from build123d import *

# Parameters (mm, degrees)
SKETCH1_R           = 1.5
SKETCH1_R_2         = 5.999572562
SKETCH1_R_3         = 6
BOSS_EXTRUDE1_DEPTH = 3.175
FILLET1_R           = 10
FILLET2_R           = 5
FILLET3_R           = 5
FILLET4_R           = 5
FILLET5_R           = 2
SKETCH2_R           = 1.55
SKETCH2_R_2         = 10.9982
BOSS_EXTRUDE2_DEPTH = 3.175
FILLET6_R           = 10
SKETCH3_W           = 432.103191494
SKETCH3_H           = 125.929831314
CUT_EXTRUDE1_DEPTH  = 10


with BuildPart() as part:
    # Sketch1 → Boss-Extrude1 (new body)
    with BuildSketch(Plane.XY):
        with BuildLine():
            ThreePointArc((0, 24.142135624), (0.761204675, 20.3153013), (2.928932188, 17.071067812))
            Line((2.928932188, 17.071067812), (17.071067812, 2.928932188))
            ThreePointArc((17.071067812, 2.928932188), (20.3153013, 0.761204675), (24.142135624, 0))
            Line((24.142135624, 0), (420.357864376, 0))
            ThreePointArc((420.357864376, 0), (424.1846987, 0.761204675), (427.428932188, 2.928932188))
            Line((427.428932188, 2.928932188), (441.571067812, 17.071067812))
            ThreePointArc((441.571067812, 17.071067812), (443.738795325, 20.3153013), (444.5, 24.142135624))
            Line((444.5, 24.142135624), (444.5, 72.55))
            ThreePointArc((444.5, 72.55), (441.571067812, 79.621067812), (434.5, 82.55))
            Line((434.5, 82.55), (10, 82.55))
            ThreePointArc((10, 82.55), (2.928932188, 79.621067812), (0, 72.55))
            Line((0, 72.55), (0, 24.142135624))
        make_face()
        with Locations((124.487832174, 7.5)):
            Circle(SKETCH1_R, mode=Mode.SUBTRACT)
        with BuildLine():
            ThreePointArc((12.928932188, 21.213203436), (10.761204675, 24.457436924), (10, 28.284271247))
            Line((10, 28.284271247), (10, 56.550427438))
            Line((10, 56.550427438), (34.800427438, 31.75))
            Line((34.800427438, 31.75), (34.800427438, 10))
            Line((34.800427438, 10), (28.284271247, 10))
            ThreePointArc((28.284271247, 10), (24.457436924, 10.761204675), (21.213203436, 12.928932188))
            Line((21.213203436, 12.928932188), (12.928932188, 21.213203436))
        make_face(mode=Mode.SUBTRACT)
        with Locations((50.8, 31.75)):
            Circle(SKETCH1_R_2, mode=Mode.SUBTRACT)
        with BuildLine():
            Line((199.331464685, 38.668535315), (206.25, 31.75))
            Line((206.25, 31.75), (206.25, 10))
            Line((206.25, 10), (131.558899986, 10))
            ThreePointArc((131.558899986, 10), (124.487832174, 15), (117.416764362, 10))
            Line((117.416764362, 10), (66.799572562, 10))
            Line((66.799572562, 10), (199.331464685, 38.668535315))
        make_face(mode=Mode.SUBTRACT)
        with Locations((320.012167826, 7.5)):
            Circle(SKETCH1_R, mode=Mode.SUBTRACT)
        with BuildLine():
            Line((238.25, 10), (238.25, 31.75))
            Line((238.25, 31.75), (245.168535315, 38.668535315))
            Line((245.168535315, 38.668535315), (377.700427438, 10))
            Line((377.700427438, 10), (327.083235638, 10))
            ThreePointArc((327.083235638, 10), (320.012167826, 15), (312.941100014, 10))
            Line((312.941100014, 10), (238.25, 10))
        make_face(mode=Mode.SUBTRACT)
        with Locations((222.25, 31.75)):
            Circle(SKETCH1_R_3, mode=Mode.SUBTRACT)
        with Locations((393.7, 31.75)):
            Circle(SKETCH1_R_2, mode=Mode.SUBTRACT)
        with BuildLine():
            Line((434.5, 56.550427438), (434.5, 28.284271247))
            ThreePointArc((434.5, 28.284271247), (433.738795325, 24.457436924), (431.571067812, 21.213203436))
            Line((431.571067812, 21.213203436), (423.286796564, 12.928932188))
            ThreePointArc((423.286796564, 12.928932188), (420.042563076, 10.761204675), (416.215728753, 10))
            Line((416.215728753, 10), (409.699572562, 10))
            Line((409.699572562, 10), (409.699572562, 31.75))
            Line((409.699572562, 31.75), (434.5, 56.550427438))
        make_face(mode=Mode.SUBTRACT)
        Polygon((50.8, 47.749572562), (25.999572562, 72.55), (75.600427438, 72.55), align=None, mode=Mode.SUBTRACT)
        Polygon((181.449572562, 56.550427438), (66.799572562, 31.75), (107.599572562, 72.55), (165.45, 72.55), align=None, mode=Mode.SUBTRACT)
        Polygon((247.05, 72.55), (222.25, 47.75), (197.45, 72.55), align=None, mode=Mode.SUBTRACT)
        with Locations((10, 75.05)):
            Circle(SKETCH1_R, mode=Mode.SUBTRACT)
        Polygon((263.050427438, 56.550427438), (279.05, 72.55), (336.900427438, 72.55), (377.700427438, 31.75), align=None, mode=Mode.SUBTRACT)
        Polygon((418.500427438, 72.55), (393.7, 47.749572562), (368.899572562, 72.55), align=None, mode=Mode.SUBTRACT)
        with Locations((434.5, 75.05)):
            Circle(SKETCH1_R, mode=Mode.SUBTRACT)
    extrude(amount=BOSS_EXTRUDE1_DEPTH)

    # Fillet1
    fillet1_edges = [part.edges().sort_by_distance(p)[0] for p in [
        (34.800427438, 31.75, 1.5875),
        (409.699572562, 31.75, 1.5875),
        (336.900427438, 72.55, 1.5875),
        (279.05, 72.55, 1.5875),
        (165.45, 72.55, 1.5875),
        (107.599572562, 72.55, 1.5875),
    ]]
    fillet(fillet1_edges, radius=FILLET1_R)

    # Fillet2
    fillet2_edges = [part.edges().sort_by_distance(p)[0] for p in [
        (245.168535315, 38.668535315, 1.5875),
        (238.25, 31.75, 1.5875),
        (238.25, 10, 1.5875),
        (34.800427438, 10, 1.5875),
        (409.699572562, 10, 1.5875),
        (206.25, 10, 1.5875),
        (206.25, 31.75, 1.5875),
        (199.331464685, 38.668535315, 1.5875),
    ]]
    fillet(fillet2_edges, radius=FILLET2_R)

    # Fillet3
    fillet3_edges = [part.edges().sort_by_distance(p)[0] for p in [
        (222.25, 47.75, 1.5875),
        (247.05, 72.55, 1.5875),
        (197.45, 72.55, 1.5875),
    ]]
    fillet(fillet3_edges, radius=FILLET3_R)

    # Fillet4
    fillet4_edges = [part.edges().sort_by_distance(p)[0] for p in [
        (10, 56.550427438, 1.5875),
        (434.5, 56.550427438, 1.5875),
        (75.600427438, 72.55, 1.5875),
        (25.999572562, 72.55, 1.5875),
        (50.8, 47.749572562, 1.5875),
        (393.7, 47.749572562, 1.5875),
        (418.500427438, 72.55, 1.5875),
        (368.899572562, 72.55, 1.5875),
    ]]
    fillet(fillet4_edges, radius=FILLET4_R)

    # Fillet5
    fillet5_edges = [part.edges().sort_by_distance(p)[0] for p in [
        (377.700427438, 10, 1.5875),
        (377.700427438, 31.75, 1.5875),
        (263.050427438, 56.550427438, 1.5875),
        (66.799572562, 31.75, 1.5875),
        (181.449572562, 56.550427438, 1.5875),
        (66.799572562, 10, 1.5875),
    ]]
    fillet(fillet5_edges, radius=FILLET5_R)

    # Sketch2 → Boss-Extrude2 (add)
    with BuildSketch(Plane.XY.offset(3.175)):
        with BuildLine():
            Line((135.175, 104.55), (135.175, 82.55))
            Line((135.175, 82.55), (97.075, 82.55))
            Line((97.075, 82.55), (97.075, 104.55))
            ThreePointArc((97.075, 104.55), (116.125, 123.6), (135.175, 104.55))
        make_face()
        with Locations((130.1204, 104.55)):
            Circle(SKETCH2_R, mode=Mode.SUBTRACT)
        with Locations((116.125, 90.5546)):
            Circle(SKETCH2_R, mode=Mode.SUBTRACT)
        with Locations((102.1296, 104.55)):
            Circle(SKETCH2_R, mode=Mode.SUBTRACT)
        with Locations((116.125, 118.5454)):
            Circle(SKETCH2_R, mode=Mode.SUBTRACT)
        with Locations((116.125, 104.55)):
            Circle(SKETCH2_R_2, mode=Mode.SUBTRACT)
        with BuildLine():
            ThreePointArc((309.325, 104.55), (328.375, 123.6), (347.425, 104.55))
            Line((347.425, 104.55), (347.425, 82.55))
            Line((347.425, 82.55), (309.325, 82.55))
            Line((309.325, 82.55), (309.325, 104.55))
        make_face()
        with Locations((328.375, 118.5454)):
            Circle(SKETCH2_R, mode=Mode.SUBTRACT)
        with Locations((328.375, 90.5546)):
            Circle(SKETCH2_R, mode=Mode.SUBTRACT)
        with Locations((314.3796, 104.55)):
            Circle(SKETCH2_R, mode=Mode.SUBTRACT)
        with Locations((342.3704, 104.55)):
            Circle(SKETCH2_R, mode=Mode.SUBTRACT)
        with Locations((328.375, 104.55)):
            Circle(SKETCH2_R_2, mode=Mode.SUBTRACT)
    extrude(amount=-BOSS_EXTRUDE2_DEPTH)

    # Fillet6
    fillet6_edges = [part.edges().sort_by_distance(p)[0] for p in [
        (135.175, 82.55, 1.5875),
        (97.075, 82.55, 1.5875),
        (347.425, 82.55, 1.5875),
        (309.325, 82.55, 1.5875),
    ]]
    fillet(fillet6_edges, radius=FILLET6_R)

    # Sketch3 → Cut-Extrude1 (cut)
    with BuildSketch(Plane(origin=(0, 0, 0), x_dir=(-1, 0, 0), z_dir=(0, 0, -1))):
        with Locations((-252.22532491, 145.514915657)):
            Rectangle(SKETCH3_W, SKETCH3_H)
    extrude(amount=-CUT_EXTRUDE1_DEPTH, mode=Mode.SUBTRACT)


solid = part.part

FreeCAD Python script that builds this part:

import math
import FreeCAD as App
import Part
import Sketcher


def edges_at(feature, points):
    """Names of the edges that pass closest to the given points."""
    edges = feature.Shape.Edges
    near = lambda p: min(range(len(edges)), key=lambda i: edges[i].distToShape(Part.Vertex(*p))[0])
    return sorted({f"Edge{near(p) + 1}" for p in points})


def add_polygon(sketch, points):
    """Adds a closed chain of lines whose ends are joined by coincident constraints."""
    first, n = sketch.GeometryCount, len(points)
    for a, b in zip(points, points[1:] + points[:1]):
        sketch.addGeometry(Part.LineSegment(App.Vector(*a, 0), App.Vector(*b, 0)), False)
    for i in range(n):
        sketch.addConstraint(Sketcher.Constraint("Coincident", first + i, 2, first + (i + 1) % n, 1))

doc = App.newDocument("Part")
body = doc.addObject("PartDesign::Body", "Body")

# Sketch on XY plane
sketch1 = body.newObject("Sketcher::SketchObject", "Sketch")
sketch1.AttachmentSupport = (doc.getObject("XY_Plane"), [""])
sketch1.MapMode = "FlatFace"
sketch1.addGeometry(Part.ArcOfCircle(Part.Circle(App.Vector(10, 24.1, 0), App.Vector(0, 0, 1), 10), math.radians(180), math.radians(225)), False)  # 0
sketch1.addGeometry(Part.LineSegment(App.Vector(2.9, 17.1, 0), App.Vector(17.1, 2.9, 0)), False)  # 1
sketch1.addGeometry(Part.ArcOfCircle(Part.Circle(App.Vector(24.1, 10, 0), App.Vector(0, 0, 1), 10), math.radians(-135), math.radians(-90)), False)  # 2
sketch1.addGeometry(Part.LineSegment(App.Vector(24.1, 0, 0), App.Vector(420.4, 0, 0)), False)  # 3
sketch1.addGeometry(Part.ArcOfCircle(Part.Circle(App.Vector(420.4, 10, 0), App.Vector(0, 0, 1), 10), math.radians(-90), math.radians(-45)), False)  # 4
sketch1.addGeometry(Part.LineSegment(App.Vector(427.4, 2.9, 0), App.Vector(441.6, 17.1, 0)), False)  # 5
sketch1.addGeometry(Part.ArcOfCircle(Part.Circle(App.Vector(434.5, 24.1, 0), App.Vector(0, 0, 1), 10), math.radians(-45), math.radians(0)), False)  # 6
sketch1.addGeometry(Part.LineSegment(App.Vector(444.5, 24.1, 0), App.Vector(444.5, 72.5, 0)), False)  # 7
sketch1.addGeometry(Part.ArcOfCircle(Part.Circle(App.Vector(434.5, 72.5, 0), App.Vector(0, 0, 1), 10), math.radians(0), math.radians(90)), False)  # 8
sketch1.addGeometry(Part.LineSegment(App.Vector(434.5, 82.5, 0), App.Vector(10, 82.5, 0)), False)  # 9
sketch1.addGeometry(Part.ArcOfCircle(Part.Circle(App.Vector(10, 72.5, 0), App.Vector(0, 0, 1), 10), math.radians(90), math.radians(180)), False)  # 10
sketch1.addGeometry(Part.LineSegment(App.Vector(0, 72.5, 0), App.Vector(0, 24.1, 0)), False)  # 11
sketch1.addGeometry(Part.Circle(App.Vector(124.5, 7.5, 0), App.Vector(0, 0, 1), 1.5), False)  # 12
sketch1.addGeometry(Part.Circle(App.Vector(50.8, 31.8, 0), App.Vector(0, 0, 1), 6), False)  # 13
sketch1.addGeometry(Part.LineSegment(App.Vector(21.2, 12.9, 0), App.Vector(12.9, 21.2, 0)), False)  # 14
sketch1.addGeometry(Part.ArcOfCircle(Part.Circle(App.Vector(20, 28.3, 0), App.Vector(0, 0, 1), 10), math.radians(-180), math.radians(-135)), False)  # 15
sketch1.addGeometry(Part.LineSegment(App.Vector(10, 28.3, 0), App.Vector(10, 56.6, 0)), False)  # 16
sketch1.addGeometry(Part.LineSegment(App.Vector(10, 56.6, 0), App.Vector(34.8, 31.8, 0)), False)  # 17
sketch1.addGeometry(Part.LineSegment(App.Vector(34.8, 31.8, 0), App.Vector(34.8, 10, 0)), False)  # 18
sketch1.addGeometry(Part.LineSegment(App.Vector(34.8, 10, 0), App.Vector(28.3, 10, 0)), False)  # 19
sketch1.addGeometry(Part.ArcOfCircle(Part.Circle(App.Vector(28.3, 20, 0), App.Vector(0, 0, 1), 10), math.radians(-135), math.radians(-90)), False)  # 20
sketch1.addGeometry(Part.LineSegment(App.Vector(66.8, 10, 0), App.Vector(199.3, 38.7, 0)), False)  # 21
sketch1.addGeometry(Part.LineSegment(App.Vector(199.3, 38.7, 0), App.Vector(206.2, 31.8, 0)), False)  # 22
sketch1.addGeometry(Part.LineSegment(App.Vector(206.2, 31.8, 0), App.Vector(206.2, 10, 0)), False)  # 23
sketch1.addGeometry(Part.LineSegment(App.Vector(206.2, 10, 0), App.Vector(131.6, 10, 0)), False)  # 24
sketch1.addGeometry(Part.ArcOfCircle(Part.Circle(App.Vector(124.5, 7.5, 0), App.Vector(0, 0, 1), 7.5), math.radians(19), math.radians(161)), False)  # 25
sketch1.addGeometry(Part.LineSegment(App.Vector(117.4, 10, 0), App.Vector(66.8, 10, 0)), False)  # 26
sketch1.addGeometry(Part.Circle(App.Vector(320, 7.5, 0), App.Vector(0, 0, 1), 1.5), False)  # 27
sketch1.addGeometry(Part.Circle(App.Vector(222.2, 31.8, 0), App.Vector(0, 0, 1), 6), False)  # 28
sketch1.addGeometry(Part.LineSegment(App.Vector(312.9, 10, 0), App.Vector(238.2, 10, 0)), False)  # 29
sketch1.addGeometry(Part.LineSegment(App.Vector(238.2, 10, 0), App.Vector(238.2, 31.8, 0)), False)  # 30
sketch1.addGeometry(Part.LineSegment(App.Vector(238.2, 31.8, 0), App.Vector(245.2, 38.7, 0)), False)  # 31
sketch1.addGeometry(Part.LineSegment(App.Vector(245.2, 38.7, 0), App.Vector(377.7, 10, 0)), False)  # 32
sketch1.addGeometry(Part.LineSegment(App.Vector(377.7, 10, 0), App.Vector(327.1, 10, 0)), False)  # 33
sketch1.addGeometry(Part.ArcOfCircle(Part.Circle(App.Vector(320, 7.5, 0), App.Vector(0, 0, 1), 7.5), math.radians(19), math.radians(161)), False)  # 34
sketch1.addGeometry(Part.Circle(App.Vector(393.7, 31.8, 0), App.Vector(0, 0, 1), 6), False)  # 35
sketch1.addGeometry(Part.LineSegment(App.Vector(409.7, 31.8, 0), App.Vector(434.5, 56.6, 0)), False)  # 36
sketch1.addGeometry(Part.LineSegment(App.Vector(434.5, 56.6, 0), App.Vector(434.5, 28.3, 0)), False)  # 37
sketch1.addGeometry(Part.ArcOfCircle(Part.Circle(App.Vector(424.5, 28.3, 0), App.Vector(0, 0, 1), 10), math.radians(-45), math.radians(0)), False)  # 38
sketch1.addGeometry(Part.LineSegment(App.Vector(431.6, 21.2, 0), App.Vector(423.3, 12.9, 0)), False)  # 39
sketch1.addGeometry(Part.ArcOfCircle(Part.Circle(App.Vector(416.2, 20, 0), App.Vector(0, 0, 1), 10), math.radians(-90), math.radians(-45)), False)  # 40
sketch1.addGeometry(Part.LineSegment(App.Vector(416.2, 10, 0), App.Vector(409.7, 10, 0)), False)  # 41
sketch1.addGeometry(Part.LineSegment(App.Vector(409.7, 10, 0), App.Vector(409.7, 31.8, 0)), False)  # 42
add_polygon(sketch1, [(165.4, 72.5), (181.4, 56.6), (66.8, 31.8), (107.6, 72.5)])  # lines 43-46
add_polygon(sketch1, [(75.6, 72.5), (50.8, 47.7), (26, 72.5)])  # lines 47-49
sketch1.addGeometry(Part.Circle(App.Vector(10, 75, 0), App.Vector(0, 0, 1), 1.5), False)  # 50
add_polygon(sketch1, [(377.7, 31.8), (263.1, 56.6), (279.1, 72.5), (336.9, 72.5)])  # lines 51-54
add_polygon(sketch1, [(197.4, 72.5), (247.1, 72.5), (222.2, 47.8)])  # lines 55-57
add_polygon(sketch1, [(368.9, 72.5), (418.5, 72.5), (393.7, 47.7)])  # lines 58-60
sketch1.addGeometry(Part.Circle(App.Vector(434.5, 75, 0), App.Vector(0, 0, 1), 1.5), False)  # 61
sketch1.addConstraint(Sketcher.Constraint("Tangent", 0, 2, 1, 1))
sketch1.addConstraint(Sketcher.Constraint("Tangent", 1, 2, 2, 1))
sketch1.addConstraint(Sketcher.Constraint("Tangent", 2, 2, 3, 1))
sketch1.addConstraint(Sketcher.Constraint("Tangent", 3, 2, 4, 1))
sketch1.addConstraint(Sketcher.Constraint("Tangent", 4, 2, 5, 1))
sketch1.addConstraint(Sketcher.Constraint("Tangent", 5, 2, 6, 1))
sketch1.addConstraint(Sketcher.Constraint("Tangent", 6, 2, 7, 1))
sketch1.addConstraint(Sketcher.Constraint("Tangent", 7, 2, 8, 1))
sketch1.addConstraint(Sketcher.Constraint("Tangent", 8, 2, 9, 1))
sketch1.addConstraint(Sketcher.Constraint("Tangent", 9, 2, 10, 1))
sketch1.addConstraint(Sketcher.Constraint("Tangent", 10, 2, 11, 1))
sketch1.addConstraint(Sketcher.Constraint("Tangent", 11, 2, 0, 1))
sketch1.addConstraint(Sketcher.Constraint("Tangent", 14, 2, 15, 2))
sketch1.addConstraint(Sketcher.Constraint("Tangent", 15, 1, 16, 1))
sketch1.addConstraint(Sketcher.Constraint("Coincident", 16, 2, 17, 1))
sketch1.addConstraint(Sketcher.Constraint("Coincident", 17, 2, 18, 1))
sketch1.addConstraint(Sketcher.Constraint("Coincident", 18, 2, 19, 1))
sketch1.addConstraint(Sketcher.Constraint("Tangent", 19, 2, 20, 2))
sketch1.addConstraint(Sketcher.Constraint("Tangent", 20, 1, 14, 1))
sketch1.addConstraint(Sketcher.Constraint("Coincident", 21, 2, 22, 1))
sketch1.addConstraint(Sketcher.Constraint("Coincident", 22, 2, 23, 1))
sketch1.addConstraint(Sketcher.Constraint("Coincident", 23, 2, 24, 1))
sketch1.addConstraint(Sketcher.Constraint("Coincident", 24, 2, 25, 1))
sketch1.addConstraint(Sketcher.Constraint("Coincident", 25, 2, 26, 1))
sketch1.addConstraint(Sketcher.Constraint("Coincident", 26, 2, 21, 1))
sketch1.addConstraint(Sketcher.Constraint("Coincident", 29, 2, 30, 1))
sketch1.addConstraint(Sketcher.Constraint("Coincident", 30, 2, 31, 1))
sketch1.addConstraint(Sketcher.Constraint("Coincident", 31, 2, 32, 1))
sketch1.addConstraint(Sketcher.Constraint("Coincident", 32, 2, 33, 1))
sketch1.addConstraint(Sketcher.Constraint("Coincident", 33, 2, 34, 1))
sketch1.addConstraint(Sketcher.Constraint("Coincident", 34, 2, 29, 1))
sketch1.addConstraint(Sketcher.Constraint("Coincident", 36, 2, 37, 1))
sketch1.addConstraint(Sketcher.Constraint("Tangent", 37, 2, 38, 2))
sketch1.addConstraint(Sketcher.Constraint("Tangent", 38, 1, 39, 1))
sketch1.addConstraint(Sketcher.Constraint("Tangent", 39, 2, 40, 2))
sketch1.addConstraint(Sketcher.Constraint("Tangent", 40, 1, 41, 1))
sketch1.addConstraint(Sketcher.Constraint("Coincident", 41, 2, 42, 1))
sketch1.addConstraint(Sketcher.Constraint("Coincident", 42, 2, 36, 1))
sketch1.addConstraint(Sketcher.Constraint("Horizontal", 3))
sketch1.addConstraint(Sketcher.Constraint("Vertical", 7))
sketch1.addConstraint(Sketcher.Constraint("Horizontal", 9))
sketch1.addConstraint(Sketcher.Constraint("Vertical", 11))
sketch1.addConstraint(Sketcher.Constraint("Vertical", 16))
sketch1.addConstraint(Sketcher.Constraint("Vertical", 18))
sketch1.addConstraint(Sketcher.Constraint("Horizontal", 19))
sketch1.addConstraint(Sketcher.Constraint("Vertical", 23))
sketch1.addConstraint(Sketcher.Constraint("Horizontal", 24))
sketch1.addConstraint(Sketcher.Constraint("Horizontal", 26))
sketch1.addConstraint(Sketcher.Constraint("Horizontal", 29))
sketch1.addConstraint(Sketcher.Constraint("Vertical", 30))
sketch1.addConstraint(Sketcher.Constraint("Horizontal", 33))
sketch1.addConstraint(Sketcher.Constraint("Vertical", 37))
sketch1.addConstraint(Sketcher.Constraint("Horizontal", 41))
sketch1.addConstraint(Sketcher.Constraint("Vertical", 42))
sketch1.addConstraint(Sketcher.Constraint("Horizontal", 46))
sketch1.addConstraint(Sketcher.Constraint("Horizontal", 49))
sketch1.addConstraint(Sketcher.Constraint("Horizontal", 53))
sketch1.addConstraint(Sketcher.Constraint("Horizontal", 55))
sketch1.addConstraint(Sketcher.Constraint("Horizontal", 58))
sketch1.addConstraint(Sketcher.Constraint("Coincident", 25, 3, 12, 3))
sketch1.addConstraint(Sketcher.Constraint("Coincident", 34, 3, 27, 3))
sketch1.addConstraint(Sketcher.Constraint("Equal", 0, 2))
sketch1.addConstraint(Sketcher.Constraint("Equal", 2, 4))
sketch1.addConstraint(Sketcher.Constraint("Equal", 4, 6))
sketch1.addConstraint(Sketcher.Constraint("Equal", 6, 8))
sketch1.addConstraint(Sketcher.Constraint("Equal", 8, 10))
sketch1.addConstraint(Sketcher.Constraint("Equal", 10, 15))
sketch1.addConstraint(Sketcher.Constraint("Equal", 15, 20))
sketch1.addConstraint(Sketcher.Constraint("Equal", 12, 27))
sketch1.addConstraint(Sketcher.Constraint("Equal", 25, 34))
sketch1.addConstraint(Sketcher.Constraint("Equal", 13, 35))
sketch1.addConstraint(Sketcher.Constraint("Equal", 20, 38))
sketch1.addConstraint(Sketcher.Constraint("Equal", 38, 40))
sketch1.addConstraint(Sketcher.Constraint("Equal", 27, 50))
sketch1.addConstraint(Sketcher.Constraint("Equal", 50, 61))
sketch1.addConstraint(Sketcher.Constraint("PointOnObject", 2, 2, -1))
sketch1.addConstraint(Sketcher.Constraint("PointOnObject", 10, 2, -2))
sketch1.addConstraint(Sketcher.Constraint("Perpendicular", 1, 5))
sketch1.addConstraint(Sketcher.Constraint("Perpendicular", 5, 14))
sketch1.addConstraint(Sketcher.Constraint("Parallel", 14, 17))
sketch1.addConstraint(Sketcher.Constraint("Parallel", 17, 22))
sketch1.addConstraint(Sketcher.Constraint("Perpendicular", 22, 31))
sketch1.addConstraint(Sketcher.Constraint("Parallel", 31, 36))
sketch1.addConstraint(Sketcher.Constraint("Parallel", 36, 39))
sketch1.addConstraint(Sketcher.Constraint("Perpendicular", 39, 43))
sketch1.addConstraint(Sketcher.Constraint("Parallel", 21, 44))
sketch1.addConstraint(Sketcher.Constraint("Perpendicular", 43, 45))
sketch1.addConstraint(Sketcher.Constraint("Parallel", 45, 47))
sketch1.addConstraint(Sketcher.Constraint("Perpendicular", 47, 48))
sketch1.addConstraint(Sketcher.Constraint("Parallel", 32, 51))
sketch1.addConstraint(Sketcher.Constraint("Perpendicular", 48, 52))
sketch1.addConstraint(Sketcher.Constraint("Perpendicular", 52, 54))
sketch1.addConstraint(Sketcher.Constraint("Perpendicular", 54, 56))
sketch1.addConstraint(Sketcher.Constraint("Perpendicular", 56, 57))
sketch1.addConstraint(Sketcher.Constraint("Perpendicular", 57, 59))
sketch1.addConstraint(Sketcher.Constraint("Perpendicular", 59, 60))
sketch1.addConstraint(Sketcher.Constraint("Horizontal", 0, 3, 6, 3))
sketch1.addConstraint(Sketcher.Constraint("Horizontal", 25, 3, 27, 3))
sketch1.addConstraint(Sketcher.Constraint("Horizontal", 13, 3, 28, 3))
sketch1.addConstraint(Sketcher.Constraint("Horizontal", 28, 3, 35, 3))
sketch1.addConstraint(Sketcher.Constraint("Horizontal", 15, 3, 38, 3))
sketch1.addConstraint(Sketcher.Constraint("Horizontal", 20, 3, 40, 3))
sketch1.addConstraint(Sketcher.Constraint("Horizontal", 50, 3, 61, 3))
sketch1.addConstraint(Sketcher.Constraint("Horizontal", 1, 2, 4, 2))
sketch1.addConstraint(Sketcher.Constraint("Horizontal", 35, 3, 17, 2))
sketch1.addConstraint(Sketcher.Constraint("Horizontal", 4, 3, 18, 2))
sketch1.addConstraint(Sketcher.Constraint("Horizontal", 17, 2, 22, 2))
sketch1.addConstraint(Sketcher.Constraint("Horizontal", 19, 2, 23, 2))
sketch1.addConstraint(Sketcher.Constraint("Horizontal", 24, 2, 25, 2))
sketch1.addConstraint(Sketcher.Constraint("Horizontal", 26, 2, 29, 2))
sketch1.addConstraint(Sketcher.Constraint("Horizontal", 22, 2, 30, 2))
sketch1.addConstraint(Sketcher.Constraint("Horizontal", 21, 2, 31, 2))
sketch1.addConstraint(Sketcher.Constraint("Horizontal", 29, 2, 32, 2))
sketch1.addConstraint(Sketcher.Constraint("Horizontal", 16, 2, 36, 2))
sketch1.addConstraint(Sketcher.Constraint("Horizontal", 30, 2, 42, 2))
sketch1.addConstraint(Sketcher.Constraint("Horizontal", 36, 2, 43, 2))
sketch1.addConstraint(Sketcher.Constraint("Horizontal", 42, 2, 44, 2))
sketch1.addConstraint(Sketcher.Constraint("Horizontal", 10, 2, 45, 2))
sketch1.addConstraint(Sketcher.Constraint("Horizontal", 46, 2, 48, 2))
sketch1.addConstraint(Sketcher.Constraint("Horizontal", 43, 2, 51, 2))
sketch1.addConstraint(Sketcher.Constraint("Horizontal", 49, 2, 52, 2))
sketch1.addConstraint(Sketcher.Constraint("Horizontal", 44, 2, 54, 2))
sketch1.addConstraint(Sketcher.Constraint("Horizontal", 53, 2, 55, 2))
sketch1.addConstraint(Sketcher.Constraint("Horizontal", 57, 2, 58, 2))
sketch1.addConstraint(Sketcher.Constraint("Horizontal", 47, 2, 59, 2))
sketch1.addConstraint(Sketcher.Constraint("Vertical", 10, 3, 50, 3))
sketch1.addConstraint(Sketcher.Constraint("Vertical", 8, 3, 61, 3))
sketch1.addConstraint(Sketcher.Constraint("Vertical", 9, 2, 15, 1))
sketch1.addConstraint(Sketcher.Constraint("Vertical", 8, 2, 36, 2))
sketch1.addConstraint(Sketcher.Constraint("Vertical", 26, 2, 44, 2))
sketch1.addConstraint(Sketcher.Constraint("Vertical", 13, 3, 47, 2))
sketch1.addConstraint(Sketcher.Constraint("Vertical", 32, 2, 54, 2))
sketch1.addConstraint(Sketcher.Constraint("Vertical", 28, 3, 56, 2))
sketch1.addConstraint(Sketcher.Constraint("Vertical", 35, 3, 59, 2))
sketch1.addConstraint(Sketcher.Constraint("Equal", 24, 29))
sketch1.addConstraint(Sketcher.Constraint("Equal", 26, 33))
sketch1.addConstraint(Sketcher.Constraint("Equal", 36, 47))
sketch1.addConstraint(Sketcher.Constraint("Diameter", 12, 3.0))
sketch1.addConstraint(Sketcher.Constraint("Diameter", 28, 12.0))
sketch1.addConstraint(Sketcher.Constraint("Radius", 0, 10.0))
sketch1.addConstraint(Sketcher.Constraint("Radius", 25, 7.5))
sketch1.addConstraint(Sketcher.Constraint("Distance", 1, 20.0))
sketch1.addConstraint(Sketcher.Constraint("DistanceX", 9, 2, 9, 1, 424.5))
sketch1.addConstraint(Sketcher.Constraint("DistanceX", 55, 1, 55, 2, 49.6))
sketch1.addConstraint(Sketcher.Constraint("DistanceY", 18, 2, 18, 1, 21.75))
sketch1.addConstraint(Sketcher.Constraint("DistanceY", -1, 1, 12, 3, 7.5))
sketch1.addConstraint(Sketcher.Constraint("DistanceX", -1, 1, 13, 3, 50.8))
sketch1.addConstraint(Sketcher.Constraint("DistanceX", -1, 1, 35, 3, 393.7))
sketch1.addConstraint(Sketcher.Constraint("DistanceY", -1, 1, 8, 3, 72.55))
sketch1.addConstraint(Sketcher.Constraint("DistanceX", -1, 1, 28, 3, 222.25))
sketch1.addConstraint(Sketcher.Constraint("DistanceY", -1, 1, 50, 3, 75.05))
sketch1.addConstraint(Sketcher.Constraint("DistanceX", -1, 1, 22, 2, 206.25))
sketch1.addConstraint(Sketcher.Constraint("DistanceX", -1, 1, 29, 2, 238.25))
sketch1.addConstraint(Sketcher.Constraint("DistanceX", -1, 1, 46, 2, 165.45))
sketch1.addConstraint(Sketcher.Constraint("Diameter", 13, 11.999145))
sketch1.addConstraint(Sketcher.Constraint("DistanceX", 24, 2, 24, 1, 74.6911))
sketch1.addConstraint(Sketcher.Constraint("Distance", 17, 35.073101))
sketch1.addConstraint(Sketcher.Constraint("DistanceX", 26, 2, 26, 1, 50.617192))
sketch1.addConstraint(Sketcher.Constraint("Distance", 14, 11.715729))
pad1 = body.newObject("PartDesign::Pad", "Pad")
pad1.Profile = sketch1
pad1.Length = 3.175
doc.recompute()

fillet = body.newObject("PartDesign::Fillet", "Fillet")
fillet.Base = (pad1, edges_at(pad1, [
    (34.8, 31.75, 1.587),
    (409.7, 31.75, 1.587),
    (336.9, 72.55, 1.587),
    (279.05, 72.55, 1.587),
    (165.45, 72.55, 1.587),
    (107.6, 72.55, 1.587),
]))
fillet.Radius = 10
doc.recompute()

fillet2 = body.newObject("PartDesign::Fillet", "Fillet001")
fillet2.Base = (fillet, edges_at(fillet, [
    (245.169, 38.669, 1.587),
    (238.25, 31.75, 1.587),
    (238.25, 10, 1.587),
    (34.8, 10, 1.587),
    (409.7, 10, 1.587),
    (206.25, 10, 1.587),
    (206.25, 31.75, 1.587),
    (199.331, 38.669, 1.587),
]))
fillet2.Radius = 5
doc.recompute()

fillet3 = body.newObject("PartDesign::Fillet", "Fillet002")
fillet3.Base = (fillet2, edges_at(fillet2, [(222.25, 47.75, 1.587), (247.05, 72.55, 1.587), (197.45, 72.55, 1.587)]))
fillet3.Radius = 5
doc.recompute()

fillet4 = body.newObject("PartDesign::Fillet", "Fillet003")
fillet4.Base = (fillet3, edges_at(fillet3, [
    (10, 56.55, 1.587),
    (434.5, 56.55, 1.587),
    (75.6, 72.55, 1.587),
    (26, 72.55, 1.587),
    (50.8, 47.75, 1.587),
    (393.7, 47.75, 1.587),
    (418.5, 72.55, 1.587),
    (368.9, 72.55, 1.587),
]))
fillet4.Radius = 5
doc.recompute()

fillet5 = body.newObject("PartDesign::Fillet", "Fillet004")
fillet5.Base = (fillet4, edges_at(fillet4, [
    (377.7, 10, 1.587),
    (377.7, 31.75, 1.587),
    (263.05, 56.55, 1.587),
    (66.8, 31.75, 1.587),
    (181.45, 56.55, 1.587),
    (66.8, 10, 1.587),
]))
fillet5.Radius = 2

# Sketch on XY plane
sketch2 = body.newObject("Sketcher::SketchObject", "Sketch001")
sketch2.AttachmentSupport = (doc.getObject("XY_Plane"), [""])
sketch2.MapMode = "FlatFace"
sketch2.AttachmentOffset = App.Placement(App.Vector(0, 0, 3.175), App.Rotation())
sketch2.addGeometry(Part.LineSegment(App.Vector(135.2, 82.5, 0), App.Vector(135.2, 104.5, 0)), False)
sketch2.addGeometry(Part.ArcOfCircle(Part.Circle(App.Vector(116.1, 104.5, 0), App.Vector(0, 0, 1), 19.1), math.radians(0), math.radians(180)), False)
sketch2.addGeometry(Part.LineSegment(App.Vector(97.1, 104.5, 0), App.Vector(97.1, 82.5, 0)), False)
sketch2.addGeometry(Part.LineSegment(App.Vector(97.1, 82.5, 0), App.Vector(135.2, 82.5, 0)), False)
sketch2.addGeometry(Part.Circle(App.Vector(116.1, 90.6, 0), App.Vector(0, 0, 1), 1.6), False)
sketch2.addGeometry(Part.Circle(App.Vector(130.1, 104.5, 0), App.Vector(0, 0, 1), 1.6), False)
sketch2.addGeometry(Part.Circle(App.Vector(116.1, 104.5, 0), App.Vector(0, 0, 1), 11), False)
sketch2.addGeometry(Part.Circle(App.Vector(102.1, 104.5, 0), App.Vector(0, 0, 1), 1.6), False)
sketch2.addGeometry(Part.Circle(App.Vector(116.1, 118.5, 0), App.Vector(0, 0, 1), 1.6), False)
sketch2.addGeometry(Part.ArcOfCircle(Part.Circle(App.Vector(328.4, 104.5, 0), App.Vector(0, 0, 1), 19.1), math.radians(0), math.radians(180)), False)
sketch2.addGeometry(Part.LineSegment(App.Vector(309.3, 104.5, 0), App.Vector(309.3, 82.5, 0)), False)
sketch2.addGeometry(Part.LineSegment(App.Vector(309.3, 82.5, 0), App.Vector(347.4, 82.5, 0)), False)
sketch2.addGeometry(Part.LineSegment(App.Vector(347.4, 82.5, 0), App.Vector(347.4, 104.5, 0)), False)
sketch2.addGeometry(Part.Circle(App.Vector(328.4, 90.6, 0), App.Vector(0, 0, 1), 1.6), False)
sketch2.addGeometry(Part.Circle(App.Vector(342.4, 104.5, 0), App.Vector(0, 0, 1), 1.6), False)
sketch2.addGeometry(Part.Circle(App.Vector(328.4, 104.5, 0), App.Vector(0, 0, 1), 11), False)
sketch2.addGeometry(Part.Circle(App.Vector(314.4, 104.5, 0), App.Vector(0, 0, 1), 1.6), False)
sketch2.addGeometry(Part.Circle(App.Vector(328.4, 118.5, 0), App.Vector(0, 0, 1), 1.6), False)
sketch2.addConstraint(Sketcher.Constraint("Tangent", 0, 2, 1, 1))
sketch2.addConstraint(Sketcher.Constraint("Tangent", 1, 2, 2, 1))
sketch2.addConstraint(Sketcher.Constraint("Coincident", 2, 2, 3, 1))
sketch2.addConstraint(Sketcher.Constraint("Coincident", 3, 2, 0, 1))
sketch2.addConstraint(Sketcher.Constraint("Tangent", 9, 2, 10, 1))
sketch2.addConstraint(Sketcher.Constraint("Coincident", 10, 2, 11, 1))
sketch2.addConstraint(Sketcher.Constraint("Coincident", 11, 2, 12, 1))
sketch2.addConstraint(Sketcher.Constraint("Tangent", 12, 2, 9, 1))
sketch2.addConstraint(Sketcher.Constraint("Vertical", 0))
sketch2.addConstraint(Sketcher.Constraint("Vertical", 2))
sketch2.addConstraint(Sketcher.Constraint("Horizontal", 3))
sketch2.addConstraint(Sketcher.Constraint("Vertical", 10))
sketch2.addConstraint(Sketcher.Constraint("Horizontal", 11))
sketch2.addConstraint(Sketcher.Constraint("Vertical", 12))
sketch2.addConstraint(Sketcher.Constraint("Coincident", 6, 3, 1, 3))
sketch2.addConstraint(Sketcher.Constraint("Coincident", 15, 3, 9, 3))
sketch2.addConstraint(Sketcher.Constraint("Equal", 4, 5))
sketch2.addConstraint(Sketcher.Constraint("Equal", 5, 7))
sketch2.addConstraint(Sketcher.Constraint("Equal", 7, 8))
sketch2.addConstraint(Sketcher.Constraint("Equal", 1, 9))
sketch2.addConstraint(Sketcher.Constraint("Equal", 8, 13))
sketch2.addConstraint(Sketcher.Constraint("Equal", 13, 14))
sketch2.addConstraint(Sketcher.Constraint("Equal", 6, 15))
sketch2.addConstraint(Sketcher.Constraint("Equal", 14, 16))
sketch2.addConstraint(Sketcher.Constraint("Equal", 16, 17))
sketch2.addConstraint(Sketcher.Constraint("Horizontal", 1, 3, 5, 3))
sketch2.addConstraint(Sketcher.Constraint("Horizontal", 6, 3, 7, 3))
sketch2.addConstraint(Sketcher.Constraint("Horizontal", 7, 3, 9, 3))
sketch2.addConstraint(Sketcher.Constraint("Horizontal", 4, 3, 13, 3))
sketch2.addConstraint(Sketcher.Constraint("Horizontal", 9, 3, 14, 3))
sketch2.addConstraint(Sketcher.Constraint("Horizontal", 15, 3, 16, 3))
sketch2.addConstraint(Sketcher.Constraint("Horizontal", 8, 3, 17, 3))
sketch2.addConstraint(Sketcher.Constraint("Horizontal", 3, 2, 10, 2))
sketch2.addConstraint(Sketcher.Constraint("Vertical", 1, 3, 4, 3))
sketch2.addConstraint(Sketcher.Constraint("Vertical", 6, 3, 8, 3))
sketch2.addConstraint(Sketcher.Constraint("Vertical", 9, 3, 13, 3))
sketch2.addConstraint(Sketcher.Constraint("Vertical", 15, 3, 17, 3))
sketch2.addConstraint(Sketcher.Constraint("Diameter", 4, 3.1))
sketch2.addConstraint(Sketcher.Constraint("DistanceY", 0, 1, 0, 2, 22.0))
sketch2.addConstraint(Sketcher.Constraint("Radius", 1, 19.05))
sketch2.addConstraint(Sketcher.Constraint("Diameter", 6, 21.9964))
sketch2.addConstraint(Sketcher.Constraint("DistanceY", -1, 1, 1, 3, 104.55))
sketch2.addConstraint(Sketcher.Constraint("DistanceX", 1, 3, 9, 3, 212.25))
sketch2.addConstraint(Sketcher.Constraint("DistanceX", 5, 3, 14, 3, 212.25))
sketch2.addConstraint(Sketcher.Constraint("DistanceX", -1, 1, 1, 3, 116.125))
sketch2.addConstraint(Sketcher.Constraint("DistanceY", -1, 1, 4, 3, 90.5546))
sketch2.addConstraint(Sketcher.Constraint("DistanceX", -1, 1, 5, 3, 130.1204))
sketch2.addConstraint(Sketcher.Constraint("DistanceX", -1, 1, 7, 3, 102.1296))
sketch2.addConstraint(Sketcher.Constraint("DistanceY", -1, 1, 8, 3, 118.5454))
sketch2.addConstraint(Sketcher.Constraint("DistanceX", -1, 1, 16, 3, 314.3796))
pad2 = body.newObject("PartDesign::Pad", "Pad001")
pad2.Profile = sketch2
pad2.Length = 3.175
pad2.Reversed = True
doc.recompute()

fillet6 = body.newObject("PartDesign::Fillet", "Fillet005")
fillet6.Base = (pad2, edges_at(pad2, [
    (135.175, 82.55, 1.587),
    (97.075, 82.55, 1.587),
    (347.425, 82.55, 1.587),
    (309.325, 82.55, 1.587),
]))
fillet6.Radius = 10

# Sketch on XY plane
sketch3 = body.newObject("Sketcher::SketchObject", "Sketch002")
sketch3.AttachmentSupport = (doc.getObject("XY_Plane"), [""])
sketch3.MapMode = "FlatFace"
add_polygon(sketch3, [(468, 208), (468, 83), (36, 83), (36, 208)])  # lines 0-3
sketch3.addConstraint(Sketcher.Constraint("Vertical", 0))
sketch3.addConstraint(Sketcher.Constraint("Horizontal", 1))
sketch3.addConstraint(Sketcher.Constraint("Vertical", 2))
sketch3.addConstraint(Sketcher.Constraint("Horizontal", 3))
sketch3.addConstraint(Sketcher.Constraint("DistanceY", -1, 1, 0, 2, 82.55))
sketch3.addConstraint(Sketcher.Constraint("DistanceX", 1, 2, 1, 1, 432.103191))
sketch3.addConstraint(Sketcher.Constraint("DistanceY", 0, 2, 0, 1, 125.929831))
sketch3.addConstraint(Sketcher.Constraint("DistanceX", -1, 1, 0, 2, 468.276921))
pocket1 = body.newObject("PartDesign::Pocket", "Pocket")
pocket1.Profile = sketch3
pocket1.Length = 10
pocket1.Reversed = True

doc.recompute()
